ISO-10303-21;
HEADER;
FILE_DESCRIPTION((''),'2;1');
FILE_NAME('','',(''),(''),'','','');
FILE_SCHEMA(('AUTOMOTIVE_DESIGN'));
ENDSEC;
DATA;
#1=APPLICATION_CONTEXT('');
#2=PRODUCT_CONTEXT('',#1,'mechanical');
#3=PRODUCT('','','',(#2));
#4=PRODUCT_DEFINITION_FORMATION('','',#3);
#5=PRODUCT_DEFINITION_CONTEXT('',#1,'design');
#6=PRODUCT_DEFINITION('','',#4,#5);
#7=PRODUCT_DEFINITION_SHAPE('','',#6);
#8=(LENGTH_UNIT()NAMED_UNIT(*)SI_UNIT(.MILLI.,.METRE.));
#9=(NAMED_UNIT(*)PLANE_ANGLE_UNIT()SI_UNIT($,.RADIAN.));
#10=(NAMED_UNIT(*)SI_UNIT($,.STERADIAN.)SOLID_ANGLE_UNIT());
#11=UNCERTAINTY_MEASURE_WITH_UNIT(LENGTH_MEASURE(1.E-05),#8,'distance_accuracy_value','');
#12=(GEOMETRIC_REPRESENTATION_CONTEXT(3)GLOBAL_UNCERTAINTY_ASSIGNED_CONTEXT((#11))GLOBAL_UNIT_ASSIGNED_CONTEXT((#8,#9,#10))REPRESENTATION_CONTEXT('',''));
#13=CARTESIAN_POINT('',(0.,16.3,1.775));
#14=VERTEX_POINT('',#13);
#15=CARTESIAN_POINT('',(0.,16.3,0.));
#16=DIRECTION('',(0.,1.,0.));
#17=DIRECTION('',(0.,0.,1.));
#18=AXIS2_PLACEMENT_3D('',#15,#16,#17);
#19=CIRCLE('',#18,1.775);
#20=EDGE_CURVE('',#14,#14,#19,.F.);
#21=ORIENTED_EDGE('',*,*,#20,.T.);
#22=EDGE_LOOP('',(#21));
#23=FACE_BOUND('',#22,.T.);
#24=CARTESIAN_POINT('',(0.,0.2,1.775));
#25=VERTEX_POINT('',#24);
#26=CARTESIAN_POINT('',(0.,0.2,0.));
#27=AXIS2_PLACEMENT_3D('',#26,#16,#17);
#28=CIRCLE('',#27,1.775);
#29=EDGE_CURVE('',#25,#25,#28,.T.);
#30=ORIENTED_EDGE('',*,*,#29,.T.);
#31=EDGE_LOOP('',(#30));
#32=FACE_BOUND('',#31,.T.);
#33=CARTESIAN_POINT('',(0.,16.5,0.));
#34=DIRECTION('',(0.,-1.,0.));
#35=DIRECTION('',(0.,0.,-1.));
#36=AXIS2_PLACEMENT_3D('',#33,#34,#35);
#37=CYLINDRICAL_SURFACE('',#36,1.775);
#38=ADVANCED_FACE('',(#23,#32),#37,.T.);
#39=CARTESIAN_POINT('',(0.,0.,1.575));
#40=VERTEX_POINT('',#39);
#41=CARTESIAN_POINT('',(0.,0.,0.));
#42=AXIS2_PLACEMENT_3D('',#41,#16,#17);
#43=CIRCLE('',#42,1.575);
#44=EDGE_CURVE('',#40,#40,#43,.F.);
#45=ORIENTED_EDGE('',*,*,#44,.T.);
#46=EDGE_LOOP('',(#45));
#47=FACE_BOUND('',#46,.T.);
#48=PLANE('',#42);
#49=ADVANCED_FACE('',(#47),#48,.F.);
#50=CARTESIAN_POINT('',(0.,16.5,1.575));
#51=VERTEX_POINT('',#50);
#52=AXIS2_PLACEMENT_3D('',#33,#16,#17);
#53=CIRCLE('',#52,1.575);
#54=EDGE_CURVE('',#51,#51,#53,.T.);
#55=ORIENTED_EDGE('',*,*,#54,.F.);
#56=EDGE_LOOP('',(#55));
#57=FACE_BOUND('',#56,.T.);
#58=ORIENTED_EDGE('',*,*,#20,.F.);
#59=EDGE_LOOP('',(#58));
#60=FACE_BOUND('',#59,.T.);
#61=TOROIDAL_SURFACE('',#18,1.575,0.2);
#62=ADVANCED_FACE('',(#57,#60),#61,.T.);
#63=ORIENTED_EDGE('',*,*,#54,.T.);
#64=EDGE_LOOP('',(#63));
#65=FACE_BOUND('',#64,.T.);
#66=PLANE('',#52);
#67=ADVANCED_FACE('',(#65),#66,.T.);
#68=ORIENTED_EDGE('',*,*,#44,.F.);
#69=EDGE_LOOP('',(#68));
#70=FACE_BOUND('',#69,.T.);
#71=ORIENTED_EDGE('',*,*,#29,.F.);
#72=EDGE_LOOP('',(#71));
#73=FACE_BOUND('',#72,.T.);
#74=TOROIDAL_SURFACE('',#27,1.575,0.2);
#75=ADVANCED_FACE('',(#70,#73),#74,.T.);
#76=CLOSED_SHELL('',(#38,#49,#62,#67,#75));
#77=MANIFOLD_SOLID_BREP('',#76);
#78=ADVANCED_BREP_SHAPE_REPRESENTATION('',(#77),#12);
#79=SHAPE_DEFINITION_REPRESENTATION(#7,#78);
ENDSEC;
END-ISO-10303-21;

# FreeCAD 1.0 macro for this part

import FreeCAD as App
import Part
import Sketcher

V = App.Vector


def edges_at(feature, points):
    """Names of the edges that pass closest to the given points."""
    edges = feature.Shape.Edges
    near = lambda p: min(range(len(edges)), key=lambda i: edges[i].distToShape(Part.Vertex(*p))[0])
    return sorted({f"Edge{near(p) + 1}" for p in points})

doc = App.newDocument("Part")
body = doc.addObject("PartDesign::Body", "Body")

# Sketch on XZ plane
sketch1 = body.newObject("Sketcher::SketchObject", "Sketch")
sketch1.AttachmentSupport = (doc.getObject("XZ_Plane"), [""])
sketch1.MapMode = "FlatFace"
sketch1.addGeometry(Part.Circle(V(0, 0, 0), V(0, 0, 1), 1.8), False)
sketch1.addConstraint([
    Sketcher.Constraint("Coincident", 0, 3, -1, 1),
    Sketcher.Constraint("Diameter", 0, 3.55),
])
pad1 = body.newObject("PartDesign::Pad", "Pad")
pad1.Profile = sketch1
pad1.Length = 16.5
pad1.Reversed = True
doc.recompute()

fillet = body.newObject("PartDesign::Fillet", "Fillet")
fillet.Base = (pad1, edges_at(pad1, [(-1.775, 0, 0), (-1.775, 16.5, 0)]))
fillet.Radius = 0.2

doc.recompute()
